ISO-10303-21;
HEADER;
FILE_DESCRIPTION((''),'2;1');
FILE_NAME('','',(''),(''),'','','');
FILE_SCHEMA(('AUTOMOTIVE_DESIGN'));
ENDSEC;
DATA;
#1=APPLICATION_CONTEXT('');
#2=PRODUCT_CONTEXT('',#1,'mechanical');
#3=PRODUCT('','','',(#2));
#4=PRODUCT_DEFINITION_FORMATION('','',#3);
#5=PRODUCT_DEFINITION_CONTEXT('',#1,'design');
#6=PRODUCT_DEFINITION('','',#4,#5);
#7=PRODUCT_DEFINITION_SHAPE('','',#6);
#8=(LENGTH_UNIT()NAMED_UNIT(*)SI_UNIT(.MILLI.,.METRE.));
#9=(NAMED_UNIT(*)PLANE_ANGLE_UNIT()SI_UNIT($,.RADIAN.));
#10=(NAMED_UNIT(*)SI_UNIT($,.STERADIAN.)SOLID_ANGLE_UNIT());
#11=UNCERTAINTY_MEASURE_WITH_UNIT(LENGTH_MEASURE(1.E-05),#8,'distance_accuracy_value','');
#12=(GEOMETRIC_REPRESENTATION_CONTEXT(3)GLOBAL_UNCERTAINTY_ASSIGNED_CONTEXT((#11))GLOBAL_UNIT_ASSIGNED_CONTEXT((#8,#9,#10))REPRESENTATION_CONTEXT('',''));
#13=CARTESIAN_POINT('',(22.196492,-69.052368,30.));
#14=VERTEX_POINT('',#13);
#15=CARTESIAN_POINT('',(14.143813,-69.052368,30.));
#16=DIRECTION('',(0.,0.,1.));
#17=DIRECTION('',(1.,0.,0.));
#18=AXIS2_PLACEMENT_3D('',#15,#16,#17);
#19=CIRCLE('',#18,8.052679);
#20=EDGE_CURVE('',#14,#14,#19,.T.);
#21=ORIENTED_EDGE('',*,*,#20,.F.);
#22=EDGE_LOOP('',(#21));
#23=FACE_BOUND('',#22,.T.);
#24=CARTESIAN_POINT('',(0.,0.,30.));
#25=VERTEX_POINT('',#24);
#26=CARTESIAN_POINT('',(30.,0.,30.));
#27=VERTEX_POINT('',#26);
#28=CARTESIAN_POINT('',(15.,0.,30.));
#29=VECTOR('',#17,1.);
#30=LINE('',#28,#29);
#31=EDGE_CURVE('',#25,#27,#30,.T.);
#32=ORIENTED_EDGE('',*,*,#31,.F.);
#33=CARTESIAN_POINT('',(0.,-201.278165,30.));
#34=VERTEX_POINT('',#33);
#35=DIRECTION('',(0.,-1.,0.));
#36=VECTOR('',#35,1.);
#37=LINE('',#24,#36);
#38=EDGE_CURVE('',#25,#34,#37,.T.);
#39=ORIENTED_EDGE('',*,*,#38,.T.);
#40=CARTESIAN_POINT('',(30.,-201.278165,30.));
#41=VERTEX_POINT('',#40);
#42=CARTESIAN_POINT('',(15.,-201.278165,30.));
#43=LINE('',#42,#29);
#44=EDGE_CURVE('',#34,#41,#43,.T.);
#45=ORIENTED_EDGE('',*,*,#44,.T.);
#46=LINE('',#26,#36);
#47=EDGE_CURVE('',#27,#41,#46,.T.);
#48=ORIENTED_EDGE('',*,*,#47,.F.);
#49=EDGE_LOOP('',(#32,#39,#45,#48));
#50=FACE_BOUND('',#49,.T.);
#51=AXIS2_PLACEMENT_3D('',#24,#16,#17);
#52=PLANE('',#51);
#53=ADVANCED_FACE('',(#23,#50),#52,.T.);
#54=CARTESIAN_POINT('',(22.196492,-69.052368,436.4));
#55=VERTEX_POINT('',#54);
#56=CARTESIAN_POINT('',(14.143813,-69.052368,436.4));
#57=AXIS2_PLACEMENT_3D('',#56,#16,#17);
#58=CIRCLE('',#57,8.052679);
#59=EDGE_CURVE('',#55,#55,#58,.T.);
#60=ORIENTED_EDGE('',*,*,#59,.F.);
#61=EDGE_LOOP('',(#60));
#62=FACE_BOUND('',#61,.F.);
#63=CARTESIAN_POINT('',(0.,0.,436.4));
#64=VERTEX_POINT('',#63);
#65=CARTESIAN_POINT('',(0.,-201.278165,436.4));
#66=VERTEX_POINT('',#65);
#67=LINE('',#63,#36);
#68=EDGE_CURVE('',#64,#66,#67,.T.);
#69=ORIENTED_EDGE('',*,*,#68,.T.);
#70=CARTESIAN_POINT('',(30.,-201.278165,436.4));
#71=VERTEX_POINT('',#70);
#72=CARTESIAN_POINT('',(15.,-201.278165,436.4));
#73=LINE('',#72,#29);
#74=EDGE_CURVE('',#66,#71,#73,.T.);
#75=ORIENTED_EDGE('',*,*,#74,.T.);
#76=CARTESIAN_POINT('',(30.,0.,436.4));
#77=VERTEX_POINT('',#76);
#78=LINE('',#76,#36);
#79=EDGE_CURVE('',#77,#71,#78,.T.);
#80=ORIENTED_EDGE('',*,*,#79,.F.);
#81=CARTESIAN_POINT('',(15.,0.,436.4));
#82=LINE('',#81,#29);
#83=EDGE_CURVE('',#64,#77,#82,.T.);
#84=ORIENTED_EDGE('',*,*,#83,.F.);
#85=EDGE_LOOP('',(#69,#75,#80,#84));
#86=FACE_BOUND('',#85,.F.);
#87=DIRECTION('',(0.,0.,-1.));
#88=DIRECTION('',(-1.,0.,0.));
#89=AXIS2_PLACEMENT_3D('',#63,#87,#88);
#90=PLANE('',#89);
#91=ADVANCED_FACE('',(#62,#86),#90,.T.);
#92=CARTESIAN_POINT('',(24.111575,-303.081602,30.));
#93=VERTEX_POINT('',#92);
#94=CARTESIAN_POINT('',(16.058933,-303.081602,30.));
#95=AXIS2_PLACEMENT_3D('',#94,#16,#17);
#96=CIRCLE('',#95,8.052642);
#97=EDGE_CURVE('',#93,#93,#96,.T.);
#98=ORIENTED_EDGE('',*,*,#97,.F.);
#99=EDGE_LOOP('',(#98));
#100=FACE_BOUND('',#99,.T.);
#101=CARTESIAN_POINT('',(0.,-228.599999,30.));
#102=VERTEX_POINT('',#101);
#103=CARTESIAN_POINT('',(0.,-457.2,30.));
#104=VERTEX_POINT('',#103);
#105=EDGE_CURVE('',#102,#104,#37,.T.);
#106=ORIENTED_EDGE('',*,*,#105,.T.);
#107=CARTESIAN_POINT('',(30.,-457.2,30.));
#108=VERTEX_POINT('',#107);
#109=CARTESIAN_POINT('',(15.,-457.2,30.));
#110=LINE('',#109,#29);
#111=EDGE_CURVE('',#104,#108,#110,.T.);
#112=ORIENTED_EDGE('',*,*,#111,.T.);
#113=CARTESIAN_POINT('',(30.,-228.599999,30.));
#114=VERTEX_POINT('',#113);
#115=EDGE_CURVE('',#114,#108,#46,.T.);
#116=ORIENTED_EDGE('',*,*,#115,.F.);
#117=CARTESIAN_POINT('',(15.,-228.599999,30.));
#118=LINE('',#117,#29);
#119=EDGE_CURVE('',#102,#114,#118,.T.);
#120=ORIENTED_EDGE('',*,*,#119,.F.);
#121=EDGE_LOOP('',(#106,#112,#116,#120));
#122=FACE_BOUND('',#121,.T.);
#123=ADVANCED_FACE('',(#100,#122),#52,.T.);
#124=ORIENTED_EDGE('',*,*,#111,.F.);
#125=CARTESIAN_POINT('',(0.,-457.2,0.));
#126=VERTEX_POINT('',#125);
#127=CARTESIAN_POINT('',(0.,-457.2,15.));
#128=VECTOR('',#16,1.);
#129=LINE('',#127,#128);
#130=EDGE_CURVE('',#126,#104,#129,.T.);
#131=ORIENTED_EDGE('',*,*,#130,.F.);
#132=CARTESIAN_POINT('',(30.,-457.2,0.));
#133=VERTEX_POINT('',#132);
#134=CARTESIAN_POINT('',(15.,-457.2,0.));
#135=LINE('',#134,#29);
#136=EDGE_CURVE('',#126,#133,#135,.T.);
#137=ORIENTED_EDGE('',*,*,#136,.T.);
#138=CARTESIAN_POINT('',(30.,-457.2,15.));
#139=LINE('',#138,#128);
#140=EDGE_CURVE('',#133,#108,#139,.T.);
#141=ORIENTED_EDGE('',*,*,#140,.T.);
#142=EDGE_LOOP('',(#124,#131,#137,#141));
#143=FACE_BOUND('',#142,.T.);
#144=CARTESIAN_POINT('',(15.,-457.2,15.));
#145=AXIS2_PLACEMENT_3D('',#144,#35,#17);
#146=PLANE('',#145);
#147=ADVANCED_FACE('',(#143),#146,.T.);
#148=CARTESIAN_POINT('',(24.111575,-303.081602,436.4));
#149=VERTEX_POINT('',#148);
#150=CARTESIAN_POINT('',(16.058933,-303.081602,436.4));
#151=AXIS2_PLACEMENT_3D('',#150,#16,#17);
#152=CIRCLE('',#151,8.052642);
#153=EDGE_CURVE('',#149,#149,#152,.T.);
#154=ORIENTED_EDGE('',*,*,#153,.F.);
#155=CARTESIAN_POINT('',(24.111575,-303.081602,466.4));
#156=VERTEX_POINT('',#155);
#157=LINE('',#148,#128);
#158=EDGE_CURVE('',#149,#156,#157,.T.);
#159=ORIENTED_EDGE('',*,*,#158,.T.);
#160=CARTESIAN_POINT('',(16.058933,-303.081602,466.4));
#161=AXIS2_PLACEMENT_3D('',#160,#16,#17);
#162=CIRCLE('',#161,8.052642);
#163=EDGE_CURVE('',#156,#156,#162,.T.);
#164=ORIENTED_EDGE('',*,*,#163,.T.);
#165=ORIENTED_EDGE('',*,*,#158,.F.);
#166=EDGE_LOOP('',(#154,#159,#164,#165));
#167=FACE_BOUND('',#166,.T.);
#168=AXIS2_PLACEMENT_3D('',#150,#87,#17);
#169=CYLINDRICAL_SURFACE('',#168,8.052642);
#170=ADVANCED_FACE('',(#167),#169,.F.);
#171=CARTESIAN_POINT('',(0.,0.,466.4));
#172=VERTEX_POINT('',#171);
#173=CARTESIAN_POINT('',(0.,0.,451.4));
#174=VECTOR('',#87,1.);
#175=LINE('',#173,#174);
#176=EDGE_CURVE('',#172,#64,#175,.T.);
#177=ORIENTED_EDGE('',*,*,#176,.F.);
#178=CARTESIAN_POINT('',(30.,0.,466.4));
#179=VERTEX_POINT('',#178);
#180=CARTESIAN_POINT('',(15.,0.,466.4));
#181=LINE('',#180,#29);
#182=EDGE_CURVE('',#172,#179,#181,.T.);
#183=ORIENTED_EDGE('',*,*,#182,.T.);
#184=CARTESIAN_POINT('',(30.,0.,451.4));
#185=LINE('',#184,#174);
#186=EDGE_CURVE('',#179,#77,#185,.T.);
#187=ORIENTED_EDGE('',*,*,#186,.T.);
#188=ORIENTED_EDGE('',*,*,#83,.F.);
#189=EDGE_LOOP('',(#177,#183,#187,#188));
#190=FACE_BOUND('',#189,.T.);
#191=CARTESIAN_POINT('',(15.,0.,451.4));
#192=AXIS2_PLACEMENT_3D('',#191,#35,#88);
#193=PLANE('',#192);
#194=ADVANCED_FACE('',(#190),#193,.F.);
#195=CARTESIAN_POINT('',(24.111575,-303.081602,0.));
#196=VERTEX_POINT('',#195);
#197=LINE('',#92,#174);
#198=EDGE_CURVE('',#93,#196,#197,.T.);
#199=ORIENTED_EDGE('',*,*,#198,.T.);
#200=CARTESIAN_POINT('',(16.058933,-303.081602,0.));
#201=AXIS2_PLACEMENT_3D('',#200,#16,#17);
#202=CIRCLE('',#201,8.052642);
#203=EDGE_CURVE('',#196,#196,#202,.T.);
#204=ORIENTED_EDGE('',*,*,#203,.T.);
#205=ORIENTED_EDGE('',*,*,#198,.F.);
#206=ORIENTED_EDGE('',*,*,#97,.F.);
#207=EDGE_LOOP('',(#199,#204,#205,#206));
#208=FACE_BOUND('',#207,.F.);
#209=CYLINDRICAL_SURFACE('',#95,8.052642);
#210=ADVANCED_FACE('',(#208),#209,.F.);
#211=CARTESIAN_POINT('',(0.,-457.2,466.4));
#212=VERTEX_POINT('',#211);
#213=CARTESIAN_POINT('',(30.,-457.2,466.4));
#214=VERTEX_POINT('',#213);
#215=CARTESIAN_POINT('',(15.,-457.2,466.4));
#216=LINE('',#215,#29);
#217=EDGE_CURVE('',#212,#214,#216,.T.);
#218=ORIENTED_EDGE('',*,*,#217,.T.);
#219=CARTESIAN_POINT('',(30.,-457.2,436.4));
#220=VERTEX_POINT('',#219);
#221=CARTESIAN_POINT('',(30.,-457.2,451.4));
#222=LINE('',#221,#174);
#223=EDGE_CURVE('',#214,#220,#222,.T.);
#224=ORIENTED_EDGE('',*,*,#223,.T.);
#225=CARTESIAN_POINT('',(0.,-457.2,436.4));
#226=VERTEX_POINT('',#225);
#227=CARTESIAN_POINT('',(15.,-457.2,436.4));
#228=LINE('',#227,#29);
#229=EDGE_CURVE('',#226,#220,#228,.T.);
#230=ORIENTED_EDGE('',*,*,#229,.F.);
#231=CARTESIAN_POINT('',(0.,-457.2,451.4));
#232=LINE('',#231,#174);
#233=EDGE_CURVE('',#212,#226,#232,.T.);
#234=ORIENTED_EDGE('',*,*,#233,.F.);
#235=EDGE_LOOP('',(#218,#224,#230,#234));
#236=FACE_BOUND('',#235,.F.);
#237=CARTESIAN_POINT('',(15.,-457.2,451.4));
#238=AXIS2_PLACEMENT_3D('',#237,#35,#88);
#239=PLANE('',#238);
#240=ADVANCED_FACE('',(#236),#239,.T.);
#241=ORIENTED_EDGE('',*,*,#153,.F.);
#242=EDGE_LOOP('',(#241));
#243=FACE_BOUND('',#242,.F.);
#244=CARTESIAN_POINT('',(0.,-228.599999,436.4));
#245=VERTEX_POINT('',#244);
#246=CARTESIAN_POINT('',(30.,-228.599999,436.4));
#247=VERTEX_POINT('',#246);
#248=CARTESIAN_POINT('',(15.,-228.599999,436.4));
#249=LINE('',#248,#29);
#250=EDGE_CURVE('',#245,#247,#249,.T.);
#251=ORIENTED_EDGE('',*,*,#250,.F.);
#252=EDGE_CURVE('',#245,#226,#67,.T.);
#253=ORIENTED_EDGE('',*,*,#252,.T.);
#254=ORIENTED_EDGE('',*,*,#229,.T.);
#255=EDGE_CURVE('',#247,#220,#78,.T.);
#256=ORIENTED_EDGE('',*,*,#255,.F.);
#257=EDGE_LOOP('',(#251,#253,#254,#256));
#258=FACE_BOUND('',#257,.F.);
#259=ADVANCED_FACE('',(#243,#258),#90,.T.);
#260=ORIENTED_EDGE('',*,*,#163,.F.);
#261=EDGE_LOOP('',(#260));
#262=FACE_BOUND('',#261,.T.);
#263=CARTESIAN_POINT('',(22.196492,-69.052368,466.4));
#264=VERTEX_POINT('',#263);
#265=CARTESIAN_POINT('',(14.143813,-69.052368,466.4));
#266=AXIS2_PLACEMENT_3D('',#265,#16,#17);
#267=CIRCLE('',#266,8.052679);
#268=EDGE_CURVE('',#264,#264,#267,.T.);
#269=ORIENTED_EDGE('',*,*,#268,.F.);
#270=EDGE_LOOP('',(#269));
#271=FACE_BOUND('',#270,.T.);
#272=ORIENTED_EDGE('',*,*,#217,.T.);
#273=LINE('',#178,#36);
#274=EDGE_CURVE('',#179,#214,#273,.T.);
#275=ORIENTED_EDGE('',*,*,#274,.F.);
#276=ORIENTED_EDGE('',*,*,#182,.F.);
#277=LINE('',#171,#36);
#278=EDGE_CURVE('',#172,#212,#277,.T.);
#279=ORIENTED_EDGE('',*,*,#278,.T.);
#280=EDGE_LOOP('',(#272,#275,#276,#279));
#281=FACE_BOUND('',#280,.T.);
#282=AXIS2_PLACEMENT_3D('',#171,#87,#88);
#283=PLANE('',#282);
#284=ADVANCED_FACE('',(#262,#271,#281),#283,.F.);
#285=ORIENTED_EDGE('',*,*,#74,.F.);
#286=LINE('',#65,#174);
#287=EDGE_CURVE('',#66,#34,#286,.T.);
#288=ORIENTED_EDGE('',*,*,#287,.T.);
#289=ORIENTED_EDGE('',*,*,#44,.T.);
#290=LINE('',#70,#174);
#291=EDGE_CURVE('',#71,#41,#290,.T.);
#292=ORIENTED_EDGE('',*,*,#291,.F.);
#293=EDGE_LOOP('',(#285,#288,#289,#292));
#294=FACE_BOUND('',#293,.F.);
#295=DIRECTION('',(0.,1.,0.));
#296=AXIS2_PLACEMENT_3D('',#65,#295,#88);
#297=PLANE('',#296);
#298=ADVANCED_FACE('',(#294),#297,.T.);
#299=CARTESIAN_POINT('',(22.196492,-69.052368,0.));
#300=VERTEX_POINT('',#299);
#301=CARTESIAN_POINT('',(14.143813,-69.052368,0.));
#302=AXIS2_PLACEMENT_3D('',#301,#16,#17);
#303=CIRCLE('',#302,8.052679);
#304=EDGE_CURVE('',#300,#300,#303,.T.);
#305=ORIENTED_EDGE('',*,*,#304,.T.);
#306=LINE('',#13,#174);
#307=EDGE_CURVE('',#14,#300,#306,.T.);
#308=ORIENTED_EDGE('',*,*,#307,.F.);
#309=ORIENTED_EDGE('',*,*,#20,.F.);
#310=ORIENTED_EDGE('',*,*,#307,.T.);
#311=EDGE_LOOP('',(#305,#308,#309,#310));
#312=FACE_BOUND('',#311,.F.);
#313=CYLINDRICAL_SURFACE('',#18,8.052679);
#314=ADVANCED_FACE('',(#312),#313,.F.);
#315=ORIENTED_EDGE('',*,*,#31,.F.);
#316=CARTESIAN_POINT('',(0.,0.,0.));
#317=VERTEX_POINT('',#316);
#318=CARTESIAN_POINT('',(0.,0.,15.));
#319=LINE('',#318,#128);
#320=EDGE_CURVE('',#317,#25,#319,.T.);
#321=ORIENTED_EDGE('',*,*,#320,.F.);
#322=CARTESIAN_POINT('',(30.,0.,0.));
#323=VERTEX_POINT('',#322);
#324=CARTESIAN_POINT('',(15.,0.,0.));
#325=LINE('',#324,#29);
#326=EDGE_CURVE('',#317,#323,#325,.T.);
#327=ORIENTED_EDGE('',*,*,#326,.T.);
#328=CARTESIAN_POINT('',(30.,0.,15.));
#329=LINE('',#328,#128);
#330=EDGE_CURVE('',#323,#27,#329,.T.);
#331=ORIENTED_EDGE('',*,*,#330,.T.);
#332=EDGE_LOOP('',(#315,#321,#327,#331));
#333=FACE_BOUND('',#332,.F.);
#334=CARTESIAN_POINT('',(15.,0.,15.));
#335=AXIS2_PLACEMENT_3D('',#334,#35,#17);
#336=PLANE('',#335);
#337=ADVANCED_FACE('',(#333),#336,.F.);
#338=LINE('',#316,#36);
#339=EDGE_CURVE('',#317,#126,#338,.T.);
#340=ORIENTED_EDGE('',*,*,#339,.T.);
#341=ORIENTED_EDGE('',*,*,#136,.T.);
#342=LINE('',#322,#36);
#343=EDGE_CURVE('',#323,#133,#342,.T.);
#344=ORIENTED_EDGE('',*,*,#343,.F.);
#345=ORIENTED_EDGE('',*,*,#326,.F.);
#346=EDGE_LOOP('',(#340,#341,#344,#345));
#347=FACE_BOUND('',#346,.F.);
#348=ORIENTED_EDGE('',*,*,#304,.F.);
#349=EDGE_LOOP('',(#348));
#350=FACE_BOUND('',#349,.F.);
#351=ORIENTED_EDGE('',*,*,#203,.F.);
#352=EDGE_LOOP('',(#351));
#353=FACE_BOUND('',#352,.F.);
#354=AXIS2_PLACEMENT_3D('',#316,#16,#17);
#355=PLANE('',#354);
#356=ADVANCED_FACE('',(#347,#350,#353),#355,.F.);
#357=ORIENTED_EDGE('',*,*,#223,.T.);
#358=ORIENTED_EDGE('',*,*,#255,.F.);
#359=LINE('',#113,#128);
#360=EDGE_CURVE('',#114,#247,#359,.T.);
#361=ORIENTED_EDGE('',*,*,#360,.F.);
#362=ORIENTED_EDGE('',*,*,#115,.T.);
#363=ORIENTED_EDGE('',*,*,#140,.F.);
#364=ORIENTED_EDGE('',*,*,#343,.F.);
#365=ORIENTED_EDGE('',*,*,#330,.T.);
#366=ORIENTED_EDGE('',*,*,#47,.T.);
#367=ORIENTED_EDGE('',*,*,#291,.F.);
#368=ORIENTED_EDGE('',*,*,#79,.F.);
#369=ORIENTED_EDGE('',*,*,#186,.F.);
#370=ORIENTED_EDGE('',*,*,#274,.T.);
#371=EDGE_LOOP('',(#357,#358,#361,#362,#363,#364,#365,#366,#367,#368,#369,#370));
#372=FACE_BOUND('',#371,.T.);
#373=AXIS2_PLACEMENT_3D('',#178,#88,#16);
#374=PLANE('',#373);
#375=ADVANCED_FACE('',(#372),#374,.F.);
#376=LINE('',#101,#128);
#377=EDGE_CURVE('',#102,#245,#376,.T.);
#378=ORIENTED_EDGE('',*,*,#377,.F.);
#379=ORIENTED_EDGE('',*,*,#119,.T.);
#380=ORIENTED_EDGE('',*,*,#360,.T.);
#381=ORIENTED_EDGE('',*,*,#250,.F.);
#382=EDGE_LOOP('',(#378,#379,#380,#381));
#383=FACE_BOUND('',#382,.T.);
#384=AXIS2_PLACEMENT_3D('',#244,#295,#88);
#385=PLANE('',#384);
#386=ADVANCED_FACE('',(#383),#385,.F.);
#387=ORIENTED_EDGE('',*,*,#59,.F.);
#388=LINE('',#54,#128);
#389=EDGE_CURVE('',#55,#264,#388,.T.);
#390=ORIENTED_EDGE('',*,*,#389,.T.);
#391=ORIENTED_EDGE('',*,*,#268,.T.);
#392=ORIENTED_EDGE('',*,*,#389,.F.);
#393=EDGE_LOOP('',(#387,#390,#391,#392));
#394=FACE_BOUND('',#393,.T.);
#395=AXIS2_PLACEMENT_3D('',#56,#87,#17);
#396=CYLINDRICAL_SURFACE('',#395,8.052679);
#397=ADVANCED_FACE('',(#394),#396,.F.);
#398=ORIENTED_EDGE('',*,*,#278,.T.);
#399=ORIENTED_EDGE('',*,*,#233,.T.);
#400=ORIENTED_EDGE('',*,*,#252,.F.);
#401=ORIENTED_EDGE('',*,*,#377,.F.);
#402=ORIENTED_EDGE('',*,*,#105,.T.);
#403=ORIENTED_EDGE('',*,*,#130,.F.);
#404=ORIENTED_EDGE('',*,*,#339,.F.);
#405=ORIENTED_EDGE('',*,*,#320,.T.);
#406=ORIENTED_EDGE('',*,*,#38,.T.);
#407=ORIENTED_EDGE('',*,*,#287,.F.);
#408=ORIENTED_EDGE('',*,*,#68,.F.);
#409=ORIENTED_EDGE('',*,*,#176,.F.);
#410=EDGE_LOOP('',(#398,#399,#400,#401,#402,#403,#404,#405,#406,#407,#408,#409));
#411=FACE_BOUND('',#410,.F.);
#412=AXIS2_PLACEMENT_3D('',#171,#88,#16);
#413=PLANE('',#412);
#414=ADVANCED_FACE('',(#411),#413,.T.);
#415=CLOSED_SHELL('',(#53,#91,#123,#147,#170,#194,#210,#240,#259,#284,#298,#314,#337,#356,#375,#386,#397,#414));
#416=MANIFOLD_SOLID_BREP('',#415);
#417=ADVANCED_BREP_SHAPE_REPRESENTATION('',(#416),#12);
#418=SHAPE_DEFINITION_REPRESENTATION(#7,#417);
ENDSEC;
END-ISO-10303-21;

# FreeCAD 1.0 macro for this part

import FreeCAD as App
import Part
import Sketcher

V = App.Vector
Q = App.Units.Quantity

doc = App.newDocument("Part")
params = doc.addObject("Spreadsheet::Sheet", "Params")
for row, (alias, value) in enumerate([
    ("pad1_length", "18 in"),
    ("pad2_length", "8 in"),
], start=1):
    params.set(f"A{row}", alias)
    params.set(f"B{row}", "=" + value)
    params.setAlias(f"B{row}", alias)

body = doc.addObject("PartDesign::Body", "Body")

sketch1 = body.newObject("Sketcher::SketchObject", "Sketch")
sketch1.AttachmentSupport = (doc.getObject("XZ_Plane"), [""])
sketch1.MapMode = "FlatFace"
sketch1.addGeometry(Part.LineSegment(V(0, 30, 0), V(0, 0, 0)), False)
sketch1.addGeometry(Part.LineSegment(V(0, 0, 0), V(30, 0, 0)), False)
sketch1.addGeometry(Part.LineSegment(V(30, 0, 0), V(30, 30, 0)), False)
sketch1.addGeometry(Part.LineSegment(V(30, 30, 0), V(0, 30, 0)), False)
sketch1.addConstraint(Sketcher.Constraint("Coincident", 0, 2, 1, 1))
sketch1.addConstraint(Sketcher.Constraint("Coincident", 1, 2, 2, 1))
sketch1.addConstraint(Sketcher.Constraint("Coincident", 2, 2, 3, 1))
sketch1.addConstraint(Sketcher.Constraint("Coincident", 3, 2, 0, 1))
sketch1.addConstraint(Sketcher.Constraint("Vertical", 0))
sketch1.addConstraint(Sketcher.Constraint("Horizontal", 1))
sketch1.addConstraint(Sketcher.Constraint("Vertical", 2))
sketch1.addConstraint(Sketcher.Constraint("Horizontal", 3))
sketch1.addConstraint(Sketcher.Constraint("Coincident", 0, 2, -1, 1))
sketch1.addConstraint(Sketcher.Constraint("Equal", 3, 0))
sketch1.addConstraint(Sketcher.Constraint("DistanceX", 1, 1, 1, 2, Q("30 mm")))
pad1 = body.newObject("PartDesign::Pad", "Pad")
pad1.Profile = sketch1
pad1.setExpression("Length", "Params.pad1_length")

sketch2 = body.newObject("Sketcher::SketchObject", "Sketch001")
sketch2.AttachmentSupport = (doc.getObject("XY_Plane"), [""])
sketch2.MapMode = "FlatFace"
sketch2.AttachmentOffset = App.Placement(V(0, 0, 30), App.Rotation())
sketch2.addGeometry(Part.Circle(V(16, -303, 0), V(0, 0, 1), 8), False)
sketch2.addGeometry(Part.Circle(V(14, -69, 0), V(0, 0, 1), 8), False)
sketch2.addConstraint(Sketcher.Constraint("Diameter", 0, Q("16.105284 mm")))
sketch2.addConstraint(Sketcher.Constraint("Diameter", 1, Q("16.105358 mm")))
sketch2.addConstraint(Sketcher.Constraint("DistanceY", 0, 3, -1, 1, Q("303.081602 mm")))
sketch2.addConstraint(Sketcher.Constraint("DistanceY", 1, 3, -1, 1, Q("69.052368 mm")))
sketch2.addConstraint(Sketcher.Constraint("DistanceX", 1, 3, 0, 3, Q("1.91512 mm")))
sketch2.addConstraint(Sketcher.Constraint("DistanceX", -1, 1, 0, 3, Q("16.058933 mm")))
pocket1 = body.newObject("PartDesign::Pocket", "Pocket")
pocket1.Profile = sketch2
pocket1.Type = "ThroughAll"

sketch3 = body.newObject("Sketcher::SketchObject", "Sketch002")
sketch3.AttachmentSupport = (doc.getObject("XY_Plane"), [""])
sketch3.MapMode = "FlatFace"
sketch3.AttachmentOffset = App.Placement(V(0, 0, 30), App.Rotation())
sketch3.addGeometry(Part.LineSegment(V(0, -201, 0), V(0, -229, 0)), False)
sketch3.addGeometry(Part.LineSegment(V(0, -229, 0), V(30, -229, 0)), False)
sketch3.addGeometry(Part.LineSegment(V(30, -229, 0), V(30, -201, 0)), False)
sketch3.addGeometry(Part.LineSegment(V(30, -201, 0), V(0, -201, 0)), False)
sketch3.addConstraint(Sketcher.Constraint("Coincident", 0, 2, 1, 1))
sketch3.addConstraint(Sketcher.Constraint("Coincident", 1, 2, 2, 1))
sketch3.addConstraint(Sketcher.Constraint("Coincident", 2, 2, 3, 1))
sketch3.addConstraint(Sketcher.Constraint("Coincident", 3, 2, 0, 1))
sketch3.addConstraint(Sketcher.Constraint("Vertical", 0))
sketch3.addConstraint(Sketcher.Constraint("Horizontal", 1))
sketch3.addConstraint(Sketcher.Constraint("Vertical", 2))
sketch3.addConstraint(Sketcher.Constraint("Horizontal", 3))
sketch3.addConstraint(Sketcher.Constraint("PointOnObject", 0, 2, -2))
sketch3.addConstraint(Sketcher.Constraint("DistanceY", 0, 2, -1, 1, Q("9 in")))
sketch3.addConstraint(Sketcher.Constraint("DistanceX", 1, 1, 1, 2, Q("30 mm")))
sketch3.addConstraint(Sketcher.Constraint("DistanceY", 0, 2, 0, 1, Q("27.321835 mm")))
pad2 = body.newObject("PartDesign::Pad", "Pad001")
pad2.Profile = sketch3
pad2.setExpression("Length", "Params.pad2_length")
body2 = doc.addObject("PartDesign::Body", "Body001")
doc.recompute()

body2.BaseFeature = body
doc.recompute()

mirroring = doc.addObject("Part::Mirroring", "Mirroring")
mirroring.Source = body
mirroring.Base = V(14.996897, -229.902144, 233.2)
mirroring.Normal = V(0, 0, 1)
body3 = doc.addObject("PartDesign::Body", "Body002")
body3.BaseFeature = mirroring
boolean = body2.newObject("PartDesign::Boolean", "Boolean")
boolean.Type = "Fuse"
boolean.addObjects([body3])
doc.recompute()
mirroring.Visibility = False

doc.recompute()
